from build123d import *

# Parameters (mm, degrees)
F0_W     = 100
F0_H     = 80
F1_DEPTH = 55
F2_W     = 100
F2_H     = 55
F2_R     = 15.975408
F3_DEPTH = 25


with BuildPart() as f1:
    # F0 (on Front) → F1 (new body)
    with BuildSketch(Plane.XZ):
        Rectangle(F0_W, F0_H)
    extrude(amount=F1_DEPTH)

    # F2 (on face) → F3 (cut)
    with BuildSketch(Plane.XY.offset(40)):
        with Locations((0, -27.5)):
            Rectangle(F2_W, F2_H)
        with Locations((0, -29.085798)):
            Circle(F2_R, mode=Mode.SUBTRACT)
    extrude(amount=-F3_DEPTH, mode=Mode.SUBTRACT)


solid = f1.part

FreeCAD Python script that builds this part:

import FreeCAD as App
import Part
import Sketcher


def add_polygon(sketch, points):
    """Adds a closed chain of lines whose ends are joined by coincident constraints."""
    first, n = sketch.GeometryCount, len(points)
    for a, b in zip(points, points[1:] + points[:1]):
        sketch.addGeometry(Part.LineSegment(App.Vector(*a, 0), App.Vector(*b, 0)), False)
    for i in range(n):
        sketch.addConstraint(Sketcher.Constraint("Coincident", first + i, 2, first + (i + 1) % n, 1))

doc = App.newDocument("Part")
body = doc.addObject("PartDesign::Body", "Body")

sketch1 = body.newObject("Sketcher::SketchObject", "Sketch")
sketch1.AttachmentSupport = (doc.getObject("XZ_Plane"), [""])
sketch1.MapMode = "FlatFace"
add_polygon(sketch1, [(-50, 40), (-50, -40), (50, -40), (50, 40)])
sketch1.addConstraint([
    Sketcher.Constraint("Vertical", 0),
    Sketcher.Constraint("Horizontal", 1),
    Sketcher.Constraint("Vertical", 2),
    Sketcher.Constraint("Horizontal", 3),
    Sketcher.Constraint("Symmetric", 0, 2, 2, 2, -1, 1),
    Sketcher.Constraint("DistanceX", 1, 1, 1, 2, 100.0),
    Sketcher.Constraint("DistanceY", 0, 2, 0, 1, 80.0),
])
pad1 = body.newObject("PartDesign::Pad", "Pad")
pad1.Profile = sketch1
pad1.Length = 55

sketch2 = body.newObject("Sketcher::SketchObject", "Sketch001")
sketch2.AttachmentSupport = (doc.getObject("XY_Plane"), [""])
sketch2.MapMode = "FlatFace"
sketch2.AttachmentOffset = App.Placement(App.Vector(0, 0, 40), App.Rotation())
add_polygon(sketch2, [(-50, 0), (-50, -55), (50, -55), (50, 0)])
sketch2.addGeometry(Part.Circle(App.Vector(0, -29, 0), App.Vector(0, 0, 1), 16), False)
sketch2.addConstraint([
    Sketcher.Constraint("Vertical", 0),
    Sketcher.Constraint("Horizontal", 1),
    Sketcher.Constraint("Vertical", 2),
    Sketcher.Constraint("Horizontal", 3),
    Sketcher.Constraint("Symmetric", 2, 2, 3, 2, -1, 1),
    Sketcher.Constraint("PointOnObject", 4, 3, -2),
    Sketcher.Constraint("DistanceX", 1, 1, 1, 2, 100.0),
    Sketcher.Constraint("DistanceY", 0, 2, 0, 1, 55.0),
    Sketcher.Constraint("Diameter", 4, 31.950816),
    Sketcher.Constraint("DistanceY", 4, 3, -1, 1, 29.085798),
])
pocket1 = body.newObject("PartDesign::Pocket", "Pocket")
pocket1.Profile = sketch2
pocket1.Length = 25

doc.recompute()
